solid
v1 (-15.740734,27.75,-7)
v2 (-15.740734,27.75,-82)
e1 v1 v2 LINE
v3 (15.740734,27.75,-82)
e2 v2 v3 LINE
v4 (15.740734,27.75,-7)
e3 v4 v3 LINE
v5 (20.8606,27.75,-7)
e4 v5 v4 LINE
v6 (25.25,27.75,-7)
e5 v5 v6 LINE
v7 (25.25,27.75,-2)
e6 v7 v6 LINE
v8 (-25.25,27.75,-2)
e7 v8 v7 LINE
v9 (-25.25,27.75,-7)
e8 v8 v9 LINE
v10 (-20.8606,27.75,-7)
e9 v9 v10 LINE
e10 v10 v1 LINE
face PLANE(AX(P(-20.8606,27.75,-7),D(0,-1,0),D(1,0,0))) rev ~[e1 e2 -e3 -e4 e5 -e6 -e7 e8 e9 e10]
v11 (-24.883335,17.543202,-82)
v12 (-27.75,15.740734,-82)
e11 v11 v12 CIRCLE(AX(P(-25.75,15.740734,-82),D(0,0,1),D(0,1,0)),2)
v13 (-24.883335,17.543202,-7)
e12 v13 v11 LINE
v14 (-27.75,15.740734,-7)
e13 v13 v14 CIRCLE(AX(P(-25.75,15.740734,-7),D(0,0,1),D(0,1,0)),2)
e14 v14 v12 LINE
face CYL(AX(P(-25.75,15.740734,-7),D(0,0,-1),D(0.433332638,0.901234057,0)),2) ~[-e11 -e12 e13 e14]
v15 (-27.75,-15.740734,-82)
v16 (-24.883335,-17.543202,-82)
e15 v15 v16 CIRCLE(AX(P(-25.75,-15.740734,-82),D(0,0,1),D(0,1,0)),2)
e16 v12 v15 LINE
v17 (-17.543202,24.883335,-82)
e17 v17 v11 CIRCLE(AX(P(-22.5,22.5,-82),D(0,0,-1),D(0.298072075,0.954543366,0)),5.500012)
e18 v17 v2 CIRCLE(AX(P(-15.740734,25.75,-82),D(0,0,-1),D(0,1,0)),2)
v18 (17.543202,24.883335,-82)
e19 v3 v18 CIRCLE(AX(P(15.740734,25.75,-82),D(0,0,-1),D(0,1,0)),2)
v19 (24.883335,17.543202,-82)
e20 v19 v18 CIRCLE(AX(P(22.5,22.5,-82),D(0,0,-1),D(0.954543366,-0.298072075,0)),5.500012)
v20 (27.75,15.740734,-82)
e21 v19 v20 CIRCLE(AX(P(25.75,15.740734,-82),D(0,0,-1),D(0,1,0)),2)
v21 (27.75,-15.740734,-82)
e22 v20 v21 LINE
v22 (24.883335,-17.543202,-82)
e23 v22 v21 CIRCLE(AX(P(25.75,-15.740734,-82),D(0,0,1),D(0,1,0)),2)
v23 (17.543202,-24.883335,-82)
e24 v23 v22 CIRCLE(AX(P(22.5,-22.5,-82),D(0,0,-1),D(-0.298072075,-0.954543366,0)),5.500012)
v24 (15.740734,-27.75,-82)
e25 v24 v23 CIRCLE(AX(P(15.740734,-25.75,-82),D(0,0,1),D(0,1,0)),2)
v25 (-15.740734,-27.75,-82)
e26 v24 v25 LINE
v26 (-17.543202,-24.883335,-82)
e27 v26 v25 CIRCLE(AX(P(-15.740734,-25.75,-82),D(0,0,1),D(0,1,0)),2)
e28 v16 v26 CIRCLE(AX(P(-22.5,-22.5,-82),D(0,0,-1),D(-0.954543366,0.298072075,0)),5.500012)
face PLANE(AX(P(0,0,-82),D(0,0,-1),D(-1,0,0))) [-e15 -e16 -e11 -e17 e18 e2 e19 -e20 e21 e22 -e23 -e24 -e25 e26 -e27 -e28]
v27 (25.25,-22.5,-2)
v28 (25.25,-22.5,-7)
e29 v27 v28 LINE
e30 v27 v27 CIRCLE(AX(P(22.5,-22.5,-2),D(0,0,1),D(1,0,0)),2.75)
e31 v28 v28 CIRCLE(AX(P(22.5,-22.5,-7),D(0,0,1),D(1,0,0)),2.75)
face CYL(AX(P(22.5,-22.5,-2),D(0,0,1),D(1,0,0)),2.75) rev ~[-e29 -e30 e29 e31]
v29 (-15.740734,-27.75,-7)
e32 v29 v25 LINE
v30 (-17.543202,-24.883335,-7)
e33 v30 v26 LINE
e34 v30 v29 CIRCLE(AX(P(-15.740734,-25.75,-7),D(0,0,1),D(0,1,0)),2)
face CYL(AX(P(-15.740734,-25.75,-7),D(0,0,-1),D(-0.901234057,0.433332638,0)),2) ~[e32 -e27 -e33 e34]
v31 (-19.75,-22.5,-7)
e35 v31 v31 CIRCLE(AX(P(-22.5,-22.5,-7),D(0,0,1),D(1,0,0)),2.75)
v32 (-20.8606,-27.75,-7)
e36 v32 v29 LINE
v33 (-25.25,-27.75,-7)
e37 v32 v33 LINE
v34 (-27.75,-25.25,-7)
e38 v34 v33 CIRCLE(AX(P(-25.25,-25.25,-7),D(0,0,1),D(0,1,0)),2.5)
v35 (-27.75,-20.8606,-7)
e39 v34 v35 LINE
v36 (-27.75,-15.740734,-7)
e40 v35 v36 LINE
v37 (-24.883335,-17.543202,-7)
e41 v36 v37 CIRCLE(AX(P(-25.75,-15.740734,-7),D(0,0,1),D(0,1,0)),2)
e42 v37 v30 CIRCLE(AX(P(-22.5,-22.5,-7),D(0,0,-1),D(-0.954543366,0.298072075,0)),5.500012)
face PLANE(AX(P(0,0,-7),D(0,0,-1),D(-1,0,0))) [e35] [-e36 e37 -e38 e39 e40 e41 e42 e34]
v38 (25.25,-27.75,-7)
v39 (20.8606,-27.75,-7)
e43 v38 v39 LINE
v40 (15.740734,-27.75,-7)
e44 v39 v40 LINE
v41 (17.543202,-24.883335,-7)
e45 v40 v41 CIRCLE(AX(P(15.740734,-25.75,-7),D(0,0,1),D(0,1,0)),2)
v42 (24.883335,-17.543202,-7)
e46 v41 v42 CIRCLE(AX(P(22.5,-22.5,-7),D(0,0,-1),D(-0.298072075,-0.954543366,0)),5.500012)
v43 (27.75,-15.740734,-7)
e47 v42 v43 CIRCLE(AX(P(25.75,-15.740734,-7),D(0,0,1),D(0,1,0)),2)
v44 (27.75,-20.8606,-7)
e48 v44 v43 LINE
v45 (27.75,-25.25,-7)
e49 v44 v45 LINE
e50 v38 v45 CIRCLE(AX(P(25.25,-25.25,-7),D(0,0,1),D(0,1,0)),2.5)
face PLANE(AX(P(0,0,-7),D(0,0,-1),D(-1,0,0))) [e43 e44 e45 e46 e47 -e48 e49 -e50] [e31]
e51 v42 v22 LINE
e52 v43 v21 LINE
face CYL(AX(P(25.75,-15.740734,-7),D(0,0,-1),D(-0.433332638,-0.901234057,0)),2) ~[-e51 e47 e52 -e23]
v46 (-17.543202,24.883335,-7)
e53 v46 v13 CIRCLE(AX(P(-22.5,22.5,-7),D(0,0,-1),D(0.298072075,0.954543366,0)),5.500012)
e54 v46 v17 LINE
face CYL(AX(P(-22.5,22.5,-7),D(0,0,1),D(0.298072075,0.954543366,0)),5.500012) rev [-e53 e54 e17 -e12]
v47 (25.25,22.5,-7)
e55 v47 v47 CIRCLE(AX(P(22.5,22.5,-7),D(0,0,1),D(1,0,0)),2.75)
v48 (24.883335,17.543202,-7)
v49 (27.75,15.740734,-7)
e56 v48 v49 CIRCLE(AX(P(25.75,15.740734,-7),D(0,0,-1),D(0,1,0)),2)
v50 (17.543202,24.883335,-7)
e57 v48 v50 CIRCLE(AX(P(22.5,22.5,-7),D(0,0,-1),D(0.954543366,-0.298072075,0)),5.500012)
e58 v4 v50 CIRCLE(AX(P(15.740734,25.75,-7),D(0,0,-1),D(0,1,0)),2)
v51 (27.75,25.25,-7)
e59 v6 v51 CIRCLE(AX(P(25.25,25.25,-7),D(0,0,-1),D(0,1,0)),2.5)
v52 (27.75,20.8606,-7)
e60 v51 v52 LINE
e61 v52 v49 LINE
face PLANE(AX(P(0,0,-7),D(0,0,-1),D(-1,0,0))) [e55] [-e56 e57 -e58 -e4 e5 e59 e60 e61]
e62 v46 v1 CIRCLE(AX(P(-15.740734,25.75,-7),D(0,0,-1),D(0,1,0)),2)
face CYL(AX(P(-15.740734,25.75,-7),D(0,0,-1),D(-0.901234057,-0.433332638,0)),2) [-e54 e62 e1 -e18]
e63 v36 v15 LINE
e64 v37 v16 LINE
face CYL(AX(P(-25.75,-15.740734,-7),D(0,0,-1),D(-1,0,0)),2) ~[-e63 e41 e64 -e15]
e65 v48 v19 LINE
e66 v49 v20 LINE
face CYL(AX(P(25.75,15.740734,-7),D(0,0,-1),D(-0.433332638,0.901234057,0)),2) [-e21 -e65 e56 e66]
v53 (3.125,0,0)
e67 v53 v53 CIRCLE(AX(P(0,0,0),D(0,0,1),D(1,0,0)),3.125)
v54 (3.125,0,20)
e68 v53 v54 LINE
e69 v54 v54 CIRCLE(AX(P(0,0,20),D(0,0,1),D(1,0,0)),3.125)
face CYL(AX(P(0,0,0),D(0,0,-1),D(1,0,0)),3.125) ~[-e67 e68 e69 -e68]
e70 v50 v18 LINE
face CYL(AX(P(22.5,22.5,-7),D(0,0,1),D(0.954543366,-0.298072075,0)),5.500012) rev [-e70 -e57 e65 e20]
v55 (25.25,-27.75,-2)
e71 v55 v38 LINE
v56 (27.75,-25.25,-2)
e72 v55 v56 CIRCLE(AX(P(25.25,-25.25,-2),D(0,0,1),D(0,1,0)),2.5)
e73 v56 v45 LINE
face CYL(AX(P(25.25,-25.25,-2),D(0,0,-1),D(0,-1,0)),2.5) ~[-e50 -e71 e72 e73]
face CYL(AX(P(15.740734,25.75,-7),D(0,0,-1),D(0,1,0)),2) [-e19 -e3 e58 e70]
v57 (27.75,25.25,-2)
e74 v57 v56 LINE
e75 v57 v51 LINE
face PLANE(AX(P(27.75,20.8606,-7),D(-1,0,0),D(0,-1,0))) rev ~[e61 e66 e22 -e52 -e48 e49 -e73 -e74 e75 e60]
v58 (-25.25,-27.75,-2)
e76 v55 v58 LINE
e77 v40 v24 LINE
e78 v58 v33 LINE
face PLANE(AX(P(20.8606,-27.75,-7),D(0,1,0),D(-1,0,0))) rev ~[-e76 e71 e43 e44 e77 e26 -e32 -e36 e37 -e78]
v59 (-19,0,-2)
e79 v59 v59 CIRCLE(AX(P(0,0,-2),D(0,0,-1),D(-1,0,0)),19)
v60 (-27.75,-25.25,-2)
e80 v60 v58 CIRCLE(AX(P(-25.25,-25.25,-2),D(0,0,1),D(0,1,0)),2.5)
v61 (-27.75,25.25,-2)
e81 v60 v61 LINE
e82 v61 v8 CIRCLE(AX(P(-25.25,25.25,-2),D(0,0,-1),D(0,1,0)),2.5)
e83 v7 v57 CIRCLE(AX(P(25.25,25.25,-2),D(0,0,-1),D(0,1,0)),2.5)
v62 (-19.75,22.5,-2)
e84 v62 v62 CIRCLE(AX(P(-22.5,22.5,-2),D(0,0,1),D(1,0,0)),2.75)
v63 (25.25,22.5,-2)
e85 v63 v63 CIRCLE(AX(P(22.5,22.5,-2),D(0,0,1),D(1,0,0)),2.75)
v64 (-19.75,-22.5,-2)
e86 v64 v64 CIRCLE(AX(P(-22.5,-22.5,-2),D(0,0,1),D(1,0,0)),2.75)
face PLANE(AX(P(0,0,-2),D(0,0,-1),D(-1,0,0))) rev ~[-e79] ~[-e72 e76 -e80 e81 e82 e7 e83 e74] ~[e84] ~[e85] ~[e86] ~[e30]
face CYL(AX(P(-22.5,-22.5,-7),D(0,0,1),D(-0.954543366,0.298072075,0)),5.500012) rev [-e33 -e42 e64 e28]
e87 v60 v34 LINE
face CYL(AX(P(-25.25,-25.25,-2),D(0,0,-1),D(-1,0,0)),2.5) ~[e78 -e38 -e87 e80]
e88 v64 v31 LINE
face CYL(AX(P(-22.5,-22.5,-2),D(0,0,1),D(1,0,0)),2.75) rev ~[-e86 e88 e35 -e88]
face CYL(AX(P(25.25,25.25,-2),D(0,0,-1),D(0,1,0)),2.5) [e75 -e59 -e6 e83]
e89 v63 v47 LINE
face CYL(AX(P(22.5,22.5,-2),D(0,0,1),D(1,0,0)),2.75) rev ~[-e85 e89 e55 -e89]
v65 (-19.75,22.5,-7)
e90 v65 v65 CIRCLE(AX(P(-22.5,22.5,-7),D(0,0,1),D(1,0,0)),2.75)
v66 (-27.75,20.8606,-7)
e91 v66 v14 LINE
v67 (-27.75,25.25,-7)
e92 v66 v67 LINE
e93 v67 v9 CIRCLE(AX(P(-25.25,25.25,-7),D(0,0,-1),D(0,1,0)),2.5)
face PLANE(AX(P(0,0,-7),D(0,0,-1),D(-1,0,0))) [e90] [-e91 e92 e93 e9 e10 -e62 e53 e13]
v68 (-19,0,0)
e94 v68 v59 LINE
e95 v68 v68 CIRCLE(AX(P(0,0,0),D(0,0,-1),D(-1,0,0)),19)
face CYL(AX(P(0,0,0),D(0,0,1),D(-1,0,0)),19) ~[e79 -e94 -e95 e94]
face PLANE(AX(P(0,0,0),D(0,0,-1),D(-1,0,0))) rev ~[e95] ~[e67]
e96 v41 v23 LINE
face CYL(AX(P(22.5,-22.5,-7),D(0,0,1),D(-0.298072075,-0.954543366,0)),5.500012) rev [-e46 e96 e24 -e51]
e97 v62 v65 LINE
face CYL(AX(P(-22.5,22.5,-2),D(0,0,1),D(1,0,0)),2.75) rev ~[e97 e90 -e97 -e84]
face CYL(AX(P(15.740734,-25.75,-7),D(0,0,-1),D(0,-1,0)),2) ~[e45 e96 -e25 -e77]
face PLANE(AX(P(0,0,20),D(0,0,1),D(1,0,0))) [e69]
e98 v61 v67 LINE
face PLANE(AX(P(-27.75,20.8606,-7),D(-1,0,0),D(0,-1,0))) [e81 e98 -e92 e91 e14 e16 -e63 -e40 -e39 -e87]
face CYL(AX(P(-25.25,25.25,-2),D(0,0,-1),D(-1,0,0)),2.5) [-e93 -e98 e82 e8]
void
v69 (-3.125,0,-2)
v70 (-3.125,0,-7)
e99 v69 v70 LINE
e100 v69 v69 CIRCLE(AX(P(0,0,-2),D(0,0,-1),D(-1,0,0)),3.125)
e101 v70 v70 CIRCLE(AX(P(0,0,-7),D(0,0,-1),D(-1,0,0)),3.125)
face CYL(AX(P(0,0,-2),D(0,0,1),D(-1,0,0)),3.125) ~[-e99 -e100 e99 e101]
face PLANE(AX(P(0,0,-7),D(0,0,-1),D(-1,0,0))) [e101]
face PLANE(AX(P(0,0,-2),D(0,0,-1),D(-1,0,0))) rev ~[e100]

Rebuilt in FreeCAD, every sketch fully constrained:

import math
import FreeCAD as App
import Part
import Sketcher
from FreeCAD import Vector
Q = App.Units.Quantity


def edges_at(feature, points):
    """Names of the edges that pass closest to the given points."""
    edges = feature.Shape.Edges
    near = lambda p: min(range(len(edges)), key=lambda i: edges[i].distToShape(Part.Vertex(*p))[0])
    return sorted({f"Edge{near(p) + 1}" for p in points})


def add_polygon(sketch, points):
    """Adds a closed chain of lines whose ends are joined by coincident constraints."""
    first, n = sketch.GeometryCount, len(points)
    for a, b in zip(points, points[1:] + points[:1]):
        sketch.addGeometry(Part.LineSegment(App.Vector(*a, 0), App.Vector(*b, 0)), False)
    for i in range(n):
        sketch.addConstraint(Sketcher.Constraint("Coincident", first + i, 2, first + (i + 1) % n, 1))

doc = App.newDocument("Part")
body = doc.addObject("PartDesign::Body", "Body")

sketch1 = doc.addObject("Sketcher::SketchObject", "Sketch")
body.addObject(sketch1)
sketch1.AttachmentSupport = (doc.XY_Plane, [""])
sketch1.MapMode = "FlatFace"
sketch1.addGeometry(Part.Circle(Vector(0, 0, 0), Vector(0, 0, 1), 3.1), False)
sketch1.addConstraint([
    Sketcher.Constraint("Coincident", 0, 3, -1, 1),
    Sketcher.Constraint("Diameter", 0, Q("6.25 mm")),
])
pad1 = doc.addObject("PartDesign::Pad", "Pad")
body.addObject(pad1)
pad1.Profile = sketch1
pad1.Length = 20

sketch2 = doc.addObject("Sketcher::SketchObject", "Sketch001")
body.addObject(sketch2)
sketch2.AttachmentSupport = (doc.XY_Plane, [""])
sketch2.MapMode = "FlatFace"
sketch2.addGeometry(Part.Circle(Vector(0, 0, 0), Vector(0, 0, 1), 19), False)
sketch2.addConstraint([
    Sketcher.Constraint("Coincident", 0, 3, -1, 1),
    Sketcher.Constraint("Diameter", 0, Q("38 mm")),
])
pad2 = doc.addObject("PartDesign::Pad", "Pad001")
body.addObject(pad2)
pad2.Profile = sketch2
pad2.Length = 2
pad2.Reversed = True

sketch3 = doc.addObject("Sketcher::SketchObject", "Sketch002")
body.addObject(sketch3)
sketch3.AttachmentSupport = (doc.XY_Plane, [""])
sketch3.MapMode = "FlatFace"
sketch3.AttachmentOffset = App.Placement(Vector(0, 0, -2), App.Rotation())
add_polygon(sketch3, [(-27.8, -27.8), (-27.8, 27.8), (27.8, 27.8), (27.8, -27.8)])
sketch3.addGeometry(Part.Circle(Vector(0, 0, 0), Vector(0, 0, 1), 3.1), False)
sketch3.addConstraint([
    Sketcher.Constraint("Vertical", 0),
    Sketcher.Constraint("Horizontal", 1),
    Sketcher.Constraint("Vertical", 2),
    Sketcher.Constraint("Horizontal", 3),
    Sketcher.Constraint("Coincident", 4, 3, -1, 1),
    Sketcher.Constraint("Symmetric", 0, 2, 2, 2, -1, 1),
    Sketcher.Constraint("Equal", 3, 0),
    Sketcher.Constraint("DistanceX", 1, 1, 1, 2, Q("55.5 mm")),
    Sketcher.Constraint("Diameter", 4, Q("6.25 mm")),
])
pad3 = doc.addObject("PartDesign::Pad", "Pad002")
body.addObject(pad3)
pad3.Profile = sketch3
pad3.Length = 5
pad3.Reversed = True
doc.recompute()

fillet = doc.addObject("PartDesign::Fillet", "Fillet")
body.addObject(fillet)
fillet.Base = (pad3, edges_at(pad3, [
    (27.75, 27.75, -4.5),
    (-27.75, 27.75, -4.5),
    (-27.75, -27.75, -4.5),
    (27.75, -27.75, -4.5),
]))
fillet.Radius = 2.5

sketch4 = doc.addObject("Sketcher::SketchObject", "Sketch003")
body.addObject(sketch4)
sketch4.AttachmentSupport = (doc.XY_Plane, [""])
sketch4.MapMode = "FlatFace"
sketch4.AttachmentOffset = App.Placement(Vector(0, 0, -2), App.Rotation())
sketch4.addGeometry([
    Part.Circle(Vector(22.5, 22.5, 0), Vector(0, 0, 1), 2.8),
    Part.Circle(Vector(-22.5, 22.5, 0), Vector(0, 0, 1), 2.8),
    Part.Circle(Vector(-22.5, -22.5, 0), Vector(0, 0, 1), 2.8),
    Part.Circle(Vector(22.5, -22.5, 0), Vector(0, 0, 1), 2.8),
], False)
sketch4.addConstraint([
    Sketcher.Constraint("Equal", 0, 1),
    Sketcher.Constraint("Equal", 1, 2),
    Sketcher.Constraint("Equal", 2, 3),
    Sketcher.Constraint("Symmetric", 0, 3, 2, 3, -1, 1),
    Sketcher.Constraint("Symmetric", 1, 3, 3, 3, -1, 1),
    Sketcher.Constraint("Symmetric", 0, 3, 1, 3, -2),
    Sketcher.Constraint("Diameter", 0, Q("5.5 mm")),
    Sketcher.Constraint("DistanceX", 1, 3, 0, 3, Q("45 mm")),
    Sketcher.Constraint("DistanceY", 2, 3, 1, 3, Q("45 mm")),
])
pocket1 = doc.addObject("PartDesign::Pocket", "Pocket")
body.addObject(pocket1)
pocket1.Profile = sketch4
pocket1.Type = "ThroughAll"

sketch5 = doc.addObject("Sketcher::SketchObject", "Sketch004")
body.addObject(sketch5)
sketch5.AttachmentSupport = (doc.XY_Plane, [""])
sketch5.MapMode = "FlatFace"
sketch5.AttachmentOffset = App.Placement(Vector(0, 0, -7), App.Rotation())
sketch5.addGeometry([
    Part.ArcOfCircle(Part.Circle(Vector(-22, 22, 0), Vector(0, 0, 1), 6), math.radians(-163), math.radians(73)),
    Part.LineSegment(Vector(-21, 28, 0), Vector(21, 28, 0)),
    Part.ArcOfCircle(Part.Circle(Vector(22, 22, 0), Vector(0, 0, 1), 6), math.radians(107), math.radians(343)),
    Part.LineSegment(Vector(28, 21, 0), Vector(28, -21, 0)),
    Part.ArcOfCircle(Part.Circle(Vector(22, -22, 0), Vector(0, 0, 1), 6), math.radians(17), math.radians(253)),
    Part.LineSegment(Vector(21, -28, 0), Vector(-21, -28, 0)),
    Part.ArcOfCircle(Part.Circle(Vector(-22, -22, 0), Vector(0, 0, 1), 6), math.radians(-73), math.radians(163)),
    Part.LineSegment(Vector(-28, -21, 0), Vector(-28, 21, 0)),
], False)
sketch5.addConstraint([
    Sketcher.Constraint("Coincident", 0, 2, 1, 1),
    Sketcher.Constraint("Coincident", 1, 2, 2, 1),
    Sketcher.Constraint("Coincident", 2, 2, 3, 1),
    Sketcher.Constraint("Coincident", 3, 2, 4, 1),
    Sketcher.Constraint("Coincident", 4, 2, 5, 1),
    Sketcher.Constraint("Coincident", 5, 2, 6, 1),
    Sketcher.Constraint("Coincident", 6, 2, 7, 1),
    Sketcher.Constraint("Coincident", 7, 2, 0, 1),
    Sketcher.Constraint("Horizontal", 1),
    Sketcher.Constraint("Vertical", 3),
    Sketcher.Constraint("Horizontal", 5),
    Sketcher.Constraint("Vertical", 7),
    Sketcher.Constraint("Equal", 0, 2),
    Sketcher.Constraint("Equal", 2, 4),
    Sketcher.Constraint("Equal", 4, 6),
    Sketcher.Constraint("Symmetric", 0, 3, 4, 3, -1, 1),
    Sketcher.Constraint("Symmetric", 2, 3, 6, 3, -1, 1),
    Sketcher.Constraint("Symmetric", 0, 3, 2, 3, -2),
    Sketcher.Constraint("Horizontal", 3, 2, 6, 2),
    Sketcher.Constraint("Vertical", 1, 2, 4, 2),
    Sketcher.Constraint("Equal", 5, 3),
    Sketcher.Constraint("Radius", 0, Q("5.5 mm")),
    Sketcher.Constraint("DistanceX", 0, 3, 2, 3, Q("45 mm")),
    Sketcher.Constraint("DistanceY", 4, 3, 2, 3, Q("45 mm")),
    Sketcher.Constraint("DistanceY", -1, 1, 0, 2, Q("27.75 mm")),
])
pad4 = doc.addObject("PartDesign::Pad", "Pad003")
body.addObject(pad4)
pad4.Profile = sketch5
pad4.Length = 75
pad4.Reversed = True
doc.recompute()

fillet2 = doc.addObject("PartDesign::Fillet", "Fillet001")
body.addObject(fillet2)
fillet2.Base = (pad4, edges_at(pad4, [
    (20.861, 27.75, -44.5),
    (27.75, 20.861, -44.5),
    (-20.861, 27.75, -44.5),
    (-27.75, 20.861, -44.5),
    (20.861, -27.75, -44.5),
    (27.75, -20.861, -44.5),
    (-20.861, -27.75, -44.5),
    (-27.75, -20.861, -44.5),
]))
fillet2.Radius = 2

doc.recompute()
